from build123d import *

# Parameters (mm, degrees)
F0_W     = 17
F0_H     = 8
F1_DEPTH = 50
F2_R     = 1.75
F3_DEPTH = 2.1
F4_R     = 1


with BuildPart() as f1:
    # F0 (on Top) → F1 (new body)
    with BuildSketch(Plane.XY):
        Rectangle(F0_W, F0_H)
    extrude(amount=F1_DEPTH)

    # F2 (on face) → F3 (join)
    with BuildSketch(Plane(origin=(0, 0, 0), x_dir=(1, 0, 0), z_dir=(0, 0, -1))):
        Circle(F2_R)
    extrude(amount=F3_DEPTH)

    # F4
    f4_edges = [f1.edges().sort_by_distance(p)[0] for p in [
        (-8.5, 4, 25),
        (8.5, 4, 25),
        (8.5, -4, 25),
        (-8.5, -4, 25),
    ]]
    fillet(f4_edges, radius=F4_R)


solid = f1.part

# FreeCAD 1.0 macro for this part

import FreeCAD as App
import Part
import Sketcher
from FreeCAD import Vector


def edges_at(feature, points):
    """Names of the edges that pass closest to the given points."""
    edges = feature.Shape.Edges
    near = lambda p: min(range(len(edges)), key=lambda i: edges[i].distToShape(Part.Vertex(*p))[0])
    return sorted({f"Edge{near(p) + 1}" for p in points})

doc = App.newDocument("Part")
body = doc.addObject("PartDesign::Body", "Body")

# Sketch on XY plane
sketch1 = body.newObject("Sketcher::SketchObject", "Sketch")
sketch1.AttachmentSupport = (doc.getObject("XY_Plane"), [""])
sketch1.MapMode = "FlatFace"
sketch1.addGeometry([
    Part.LineSegment(Vector(-8.5, 4, 0), Vector(-8.5, -4, 0)),
    Part.LineSegment(Vector(-8.5, -4, 0), Vector(8.5, -4, 0)),
    Part.LineSegment(Vector(8.5, -4, 0), Vector(8.5, 4, 0)),
    Part.LineSegment(Vector(8.5, 4, 0), Vector(-8.5, 4, 0)),
], False)
sketch1.addConstraint([
    Sketcher.Constraint("Coincident", 0, 2, 1, 1),
    Sketcher.Constraint("Coincident", 1, 2, 2, 1),
    Sketcher.Constraint("Coincident", 2, 2, 3, 1),
    Sketcher.Constraint("Coincident", 3, 2, 0, 1),
    Sketcher.Constraint("Vertical", 0),
    Sketcher.Constraint("Horizontal", 1),
    Sketcher.Constraint("Vertical", 2),
    Sketcher.Constraint("Horizontal", 3),
    Sketcher.Constraint("Symmetric", 0, 2, 2, 2, -1, 1),
    Sketcher.Constraint("DistanceX", 1, 1, 1, 2, 17.0),
    Sketcher.Constraint("DistanceY", 0, 2, 0, 1, 8.0),
])
pad1 = body.newObject("PartDesign::Pad", "Pad")
pad1.Profile = sketch1
pad1.Length = 50

# Sketch on XY plane
sketch2 = body.newObject("Sketcher::SketchObject", "Sketch001")
sketch2.AttachmentSupport = (doc.getObject("XY_Plane"), [""])
sketch2.MapMode = "FlatFace"
sketch2.addGeometry(Part.Circle(Vector(0, 0, 0), Vector(0, 0, 1), 1.75), False)
sketch2.addConstraint([
    Sketcher.Constraint("Coincident", 0, 3, -1, 1),
    Sketcher.Constraint("Diameter", 0, 3.5),
])
pad2 = body.newObject("PartDesign::Pad", "Pad001")
pad2.Profile = sketch2
pad2.Length = 2.1
pad2.Reversed = True
doc.recompute()

fillet = body.newObject("PartDesign::Fillet", "Fillet")
fillet.Base = (pad2, edges_at(pad2, [
    (-8.5, 4, 25),
    (8.5, 4, 25),
    (8.5, -4, 25),
    (-8.5, -4, 25),
]))
fillet.Radius = 1

doc.recompute()
